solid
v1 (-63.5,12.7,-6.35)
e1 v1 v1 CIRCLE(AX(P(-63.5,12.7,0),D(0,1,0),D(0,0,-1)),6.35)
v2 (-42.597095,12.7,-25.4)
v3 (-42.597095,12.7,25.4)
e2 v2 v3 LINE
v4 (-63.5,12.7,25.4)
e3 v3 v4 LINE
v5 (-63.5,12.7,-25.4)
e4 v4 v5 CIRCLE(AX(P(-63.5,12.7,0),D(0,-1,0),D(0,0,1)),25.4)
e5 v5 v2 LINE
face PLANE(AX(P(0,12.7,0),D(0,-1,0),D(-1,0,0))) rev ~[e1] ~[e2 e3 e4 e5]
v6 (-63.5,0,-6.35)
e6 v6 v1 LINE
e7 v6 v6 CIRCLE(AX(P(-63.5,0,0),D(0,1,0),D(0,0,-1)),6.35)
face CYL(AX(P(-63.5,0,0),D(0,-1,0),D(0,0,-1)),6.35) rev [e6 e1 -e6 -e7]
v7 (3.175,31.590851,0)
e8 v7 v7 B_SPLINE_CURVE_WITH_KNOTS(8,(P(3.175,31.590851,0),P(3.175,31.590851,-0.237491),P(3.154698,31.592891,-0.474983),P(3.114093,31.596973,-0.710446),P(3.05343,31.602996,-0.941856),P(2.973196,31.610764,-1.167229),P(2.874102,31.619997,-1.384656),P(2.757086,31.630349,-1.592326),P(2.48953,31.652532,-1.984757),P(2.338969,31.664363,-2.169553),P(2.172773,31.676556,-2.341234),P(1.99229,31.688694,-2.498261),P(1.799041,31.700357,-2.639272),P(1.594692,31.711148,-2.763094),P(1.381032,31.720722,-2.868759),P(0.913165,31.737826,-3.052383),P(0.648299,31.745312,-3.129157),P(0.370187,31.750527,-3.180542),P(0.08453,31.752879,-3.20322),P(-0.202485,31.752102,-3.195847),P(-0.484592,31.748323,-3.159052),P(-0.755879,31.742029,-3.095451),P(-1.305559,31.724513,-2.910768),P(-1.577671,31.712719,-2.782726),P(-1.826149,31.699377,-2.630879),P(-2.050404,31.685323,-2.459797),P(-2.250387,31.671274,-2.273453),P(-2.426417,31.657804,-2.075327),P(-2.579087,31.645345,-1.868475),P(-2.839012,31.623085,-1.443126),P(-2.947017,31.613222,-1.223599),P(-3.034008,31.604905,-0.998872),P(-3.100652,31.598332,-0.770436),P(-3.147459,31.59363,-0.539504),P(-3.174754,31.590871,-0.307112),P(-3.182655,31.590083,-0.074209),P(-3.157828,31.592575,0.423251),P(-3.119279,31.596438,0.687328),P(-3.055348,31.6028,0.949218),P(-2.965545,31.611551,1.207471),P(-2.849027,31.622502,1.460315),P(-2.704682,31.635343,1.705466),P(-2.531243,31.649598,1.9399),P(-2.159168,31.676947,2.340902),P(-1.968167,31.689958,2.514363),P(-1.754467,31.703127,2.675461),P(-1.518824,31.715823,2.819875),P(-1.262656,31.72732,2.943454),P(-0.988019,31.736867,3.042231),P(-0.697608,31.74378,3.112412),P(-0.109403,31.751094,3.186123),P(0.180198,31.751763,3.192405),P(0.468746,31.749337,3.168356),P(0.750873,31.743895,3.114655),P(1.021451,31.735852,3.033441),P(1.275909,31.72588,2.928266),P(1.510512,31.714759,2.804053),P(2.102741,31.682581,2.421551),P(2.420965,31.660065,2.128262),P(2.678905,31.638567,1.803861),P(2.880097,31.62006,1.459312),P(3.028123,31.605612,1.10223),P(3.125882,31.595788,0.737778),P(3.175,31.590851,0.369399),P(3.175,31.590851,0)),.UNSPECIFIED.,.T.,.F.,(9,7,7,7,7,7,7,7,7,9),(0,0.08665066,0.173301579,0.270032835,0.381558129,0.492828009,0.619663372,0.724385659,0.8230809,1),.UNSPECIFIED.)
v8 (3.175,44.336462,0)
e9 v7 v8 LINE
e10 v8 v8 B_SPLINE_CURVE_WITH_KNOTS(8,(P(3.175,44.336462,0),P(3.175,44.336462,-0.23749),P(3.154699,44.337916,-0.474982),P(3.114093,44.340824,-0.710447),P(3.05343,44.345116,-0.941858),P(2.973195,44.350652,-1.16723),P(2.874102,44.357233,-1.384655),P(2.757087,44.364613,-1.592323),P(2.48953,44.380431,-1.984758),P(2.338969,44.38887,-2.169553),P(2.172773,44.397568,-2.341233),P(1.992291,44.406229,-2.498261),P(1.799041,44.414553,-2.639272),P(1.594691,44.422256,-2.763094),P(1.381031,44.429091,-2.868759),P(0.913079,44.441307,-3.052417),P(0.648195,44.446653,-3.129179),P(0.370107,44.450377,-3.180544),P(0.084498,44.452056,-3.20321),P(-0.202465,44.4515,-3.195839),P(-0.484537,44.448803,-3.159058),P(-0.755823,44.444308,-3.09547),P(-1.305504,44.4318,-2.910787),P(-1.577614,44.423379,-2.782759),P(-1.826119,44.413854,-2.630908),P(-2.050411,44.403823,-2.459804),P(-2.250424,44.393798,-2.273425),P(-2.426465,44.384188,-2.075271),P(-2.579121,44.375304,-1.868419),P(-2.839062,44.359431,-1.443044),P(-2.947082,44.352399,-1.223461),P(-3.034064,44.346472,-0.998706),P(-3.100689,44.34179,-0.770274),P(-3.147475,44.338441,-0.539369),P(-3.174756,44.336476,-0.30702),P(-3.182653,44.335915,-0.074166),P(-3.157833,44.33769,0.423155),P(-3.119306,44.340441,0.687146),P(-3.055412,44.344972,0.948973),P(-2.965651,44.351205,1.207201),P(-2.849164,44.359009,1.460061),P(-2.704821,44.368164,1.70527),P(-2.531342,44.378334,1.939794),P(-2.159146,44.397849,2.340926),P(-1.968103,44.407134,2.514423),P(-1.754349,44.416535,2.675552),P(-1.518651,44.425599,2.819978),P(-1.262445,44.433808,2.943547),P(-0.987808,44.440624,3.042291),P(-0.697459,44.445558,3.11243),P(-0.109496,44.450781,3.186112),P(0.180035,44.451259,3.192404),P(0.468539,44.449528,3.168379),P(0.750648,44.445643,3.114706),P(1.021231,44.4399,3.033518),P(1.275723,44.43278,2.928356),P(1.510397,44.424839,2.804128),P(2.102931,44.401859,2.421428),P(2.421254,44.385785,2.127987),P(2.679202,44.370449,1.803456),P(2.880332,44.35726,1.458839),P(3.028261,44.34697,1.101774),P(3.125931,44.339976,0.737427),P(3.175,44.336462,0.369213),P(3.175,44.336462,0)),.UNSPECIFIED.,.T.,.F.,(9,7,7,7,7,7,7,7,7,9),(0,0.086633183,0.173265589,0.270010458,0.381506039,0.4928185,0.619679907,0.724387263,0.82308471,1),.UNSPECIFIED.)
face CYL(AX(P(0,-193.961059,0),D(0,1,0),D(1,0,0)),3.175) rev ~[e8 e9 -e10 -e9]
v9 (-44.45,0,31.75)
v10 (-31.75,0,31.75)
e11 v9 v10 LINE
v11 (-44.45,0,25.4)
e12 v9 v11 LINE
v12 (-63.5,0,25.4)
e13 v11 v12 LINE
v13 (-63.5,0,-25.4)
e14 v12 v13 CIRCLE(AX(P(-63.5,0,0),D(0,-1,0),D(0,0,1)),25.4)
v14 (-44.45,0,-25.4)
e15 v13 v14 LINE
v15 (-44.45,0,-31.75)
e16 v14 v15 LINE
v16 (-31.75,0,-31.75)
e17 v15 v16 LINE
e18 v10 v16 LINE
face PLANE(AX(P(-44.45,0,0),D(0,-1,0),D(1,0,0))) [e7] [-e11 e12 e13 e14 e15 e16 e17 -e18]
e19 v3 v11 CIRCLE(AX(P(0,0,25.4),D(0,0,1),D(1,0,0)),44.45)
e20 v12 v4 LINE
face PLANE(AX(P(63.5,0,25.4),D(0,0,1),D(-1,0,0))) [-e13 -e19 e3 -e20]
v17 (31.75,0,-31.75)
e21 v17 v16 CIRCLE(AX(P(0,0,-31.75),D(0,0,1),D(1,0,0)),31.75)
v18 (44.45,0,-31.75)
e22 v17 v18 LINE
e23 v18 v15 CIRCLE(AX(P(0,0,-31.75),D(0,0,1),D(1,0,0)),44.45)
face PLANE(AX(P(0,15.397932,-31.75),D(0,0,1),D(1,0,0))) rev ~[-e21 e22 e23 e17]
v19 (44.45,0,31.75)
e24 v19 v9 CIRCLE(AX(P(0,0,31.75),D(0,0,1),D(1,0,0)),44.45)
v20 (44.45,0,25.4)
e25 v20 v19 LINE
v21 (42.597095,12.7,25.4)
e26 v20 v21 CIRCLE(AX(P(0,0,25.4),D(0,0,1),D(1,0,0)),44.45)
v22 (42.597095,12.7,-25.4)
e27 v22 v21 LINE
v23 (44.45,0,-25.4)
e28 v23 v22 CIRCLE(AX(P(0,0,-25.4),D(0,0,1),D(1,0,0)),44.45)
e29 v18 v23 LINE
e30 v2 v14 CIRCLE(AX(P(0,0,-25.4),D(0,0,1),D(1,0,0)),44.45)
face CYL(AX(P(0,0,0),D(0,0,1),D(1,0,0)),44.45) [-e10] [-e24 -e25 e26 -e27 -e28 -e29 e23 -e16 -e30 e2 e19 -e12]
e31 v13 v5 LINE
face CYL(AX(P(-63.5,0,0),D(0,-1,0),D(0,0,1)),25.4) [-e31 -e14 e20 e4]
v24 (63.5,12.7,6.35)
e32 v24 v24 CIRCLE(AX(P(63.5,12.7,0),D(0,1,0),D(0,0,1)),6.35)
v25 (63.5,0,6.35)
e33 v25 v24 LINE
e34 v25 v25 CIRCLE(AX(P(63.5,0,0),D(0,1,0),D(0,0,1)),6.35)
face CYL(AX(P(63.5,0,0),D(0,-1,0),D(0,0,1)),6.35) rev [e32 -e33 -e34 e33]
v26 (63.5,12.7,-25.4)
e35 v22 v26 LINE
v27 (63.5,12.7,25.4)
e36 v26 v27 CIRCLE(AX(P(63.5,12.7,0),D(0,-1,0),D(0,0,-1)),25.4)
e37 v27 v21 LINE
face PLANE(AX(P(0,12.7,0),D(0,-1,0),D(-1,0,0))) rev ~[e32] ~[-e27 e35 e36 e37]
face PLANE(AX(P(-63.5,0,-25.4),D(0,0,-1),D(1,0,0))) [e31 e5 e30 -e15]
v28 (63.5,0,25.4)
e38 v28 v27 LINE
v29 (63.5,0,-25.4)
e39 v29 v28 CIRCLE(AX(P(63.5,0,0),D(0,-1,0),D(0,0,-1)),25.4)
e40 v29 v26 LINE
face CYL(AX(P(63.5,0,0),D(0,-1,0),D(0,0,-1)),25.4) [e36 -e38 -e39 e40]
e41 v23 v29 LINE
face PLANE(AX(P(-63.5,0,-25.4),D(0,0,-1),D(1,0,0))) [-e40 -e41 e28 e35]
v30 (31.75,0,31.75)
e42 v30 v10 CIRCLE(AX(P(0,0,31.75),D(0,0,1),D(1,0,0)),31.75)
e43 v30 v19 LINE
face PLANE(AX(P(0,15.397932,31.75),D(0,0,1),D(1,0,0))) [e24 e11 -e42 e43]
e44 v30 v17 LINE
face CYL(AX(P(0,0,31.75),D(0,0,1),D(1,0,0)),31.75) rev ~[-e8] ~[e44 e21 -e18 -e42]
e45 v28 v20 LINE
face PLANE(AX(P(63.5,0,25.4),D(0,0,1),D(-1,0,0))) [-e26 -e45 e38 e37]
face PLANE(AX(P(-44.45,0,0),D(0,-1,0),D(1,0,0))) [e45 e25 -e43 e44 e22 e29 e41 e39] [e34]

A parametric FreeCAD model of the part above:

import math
import FreeCAD as App
import Part
import Sketcher
from FreeCAD import Vector
Q = App.Units.Quantity

doc = App.newDocument("Part")
body = doc.addObject("PartDesign::Body", "Body")

sketch1 = doc.addObject("Sketcher::SketchObject", "Sketch")
body.addObject(sketch1)
sketch1.AttachmentSupport = (doc.XZ_Plane, [""])
sketch1.MapMode = "FlatFace"
sketch1.addGeometry(Part.LineSegment(Vector(64, -25, 0), Vector(-64, -25, 0)), False)
sketch1.addGeometry(Part.ArcOfCircle(Part.Circle(Vector(-64, 0, 0), Vector(0, 0, 1), 25), math.radians(90), math.radians(270)), False)
sketch1.addGeometry(Part.LineSegment(Vector(-64, 25, 0), Vector(64, 25, 0)), False)
sketch1.addGeometry(Part.ArcOfCircle(Part.Circle(Vector(64, 0, 0), Vector(0, 0, 1), 25), math.radians(-90), math.radians(90)), False)
sketch1.addGeometry(Part.Circle(Vector(64, 0, 0), Vector(0, 0, 1), 6), False)
sketch1.addGeometry(Part.Circle(Vector(-64, 0, 0), Vector(0, 0, 1), 6), False)
sketch1.addConstraint(Sketcher.Constraint("Tangent", 0, 2, 1, 2))
sketch1.addConstraint(Sketcher.Constraint("Tangent", 1, 1, 2, 1))
sketch1.addConstraint(Sketcher.Constraint("Tangent", 2, 2, 3, 2))
sketch1.addConstraint(Sketcher.Constraint("Tangent", 3, 1, 0, 1))
sketch1.addConstraint(Sketcher.Constraint("Horizontal", 0))
sketch1.addConstraint(Sketcher.Constraint("Horizontal", 2))
sketch1.addConstraint(Sketcher.Constraint("Coincident", 4, 3, 3, 3))
sketch1.addConstraint(Sketcher.Constraint("Coincident", 5, 3, 1, 3))
sketch1.addConstraint(Sketcher.Constraint("Equal", 4, 5))
sketch1.addConstraint(Sketcher.Constraint("Symmetric", 1, 3, 3, 3, -1, 1))
sketch1.addConstraint(Sketcher.Constraint("Radius", 1, Q("1 in")))
sketch1.addConstraint(Sketcher.Constraint("Diameter", 4, Q("0.5 in")))
sketch1.addConstraint(Sketcher.Constraint("DistanceX", 0, 2, 0, 1, Q("5 in")))
pad1 = doc.addObject("PartDesign::Pad", "Pad")
body.addObject(pad1)
pad1.Profile = sketch1
pad1.Length = Q("0.5 in")
pad1.Reversed = True

sketch2 = doc.addObject("Sketcher::SketchObject", "Sketch001")
body.addObject(sketch2)
sketch2.AttachmentSupport = (doc.XY_Plane, [""])
sketch2.MapMode = "FlatFace"
sketch2.addGeometry(Part.LineSegment(Vector(-44, 0, 0), Vector(44, 0, 0)), False)
sketch2.addGeometry(Part.ArcOfCircle(Part.Circle(Vector(0, 0, 0), Vector(0, 0, 1), 44), math.radians(0), math.radians(180)), False)
sketch2.addConstraint(Sketcher.Constraint("Coincident", 0, 1, 1, 2))
sketch2.addConstraint(Sketcher.Constraint("Coincident", 1, 1, 0, 2))
sketch2.addConstraint(Sketcher.Constraint("Horizontal", 0))
sketch2.addConstraint(Sketcher.Constraint("Coincident", 1, 3, -1, 1))
sketch2.addConstraint(Sketcher.Constraint("PointOnObject", 0, 1, -1))
sketch2.addConstraint(Sketcher.Constraint("Radius", 1, Q("1.75 in")))
pad2 = doc.addObject("PartDesign::Pad", "Pad001")
body.addObject(pad2)
pad2.Profile = sketch2
pad2.Length = Q("2.5 in")
pad2.Midplane = True

sketch3 = doc.addObject("Sketcher::SketchObject", "Sketch002")
body.addObject(sketch3)
sketch3.AttachmentSupport = (doc.XZ_Plane, [""])
sketch3.MapMode = "FlatFace"
sketch3.addGeometry(Part.Circle(Vector(0, 0, 0), Vector(0, 0, 1), 3.2), False)
sketch3.addConstraint(Sketcher.Constraint("Coincident", 0, 3, -1, 1))
sketch3.addConstraint(Sketcher.Constraint("Diameter", 0, Q("0.25 in")))
doc.recompute()
hole = doc.addObject("PartDesign::Hole", "Hole")
body.addObject(hole)
hole.Profile = sketch3
hole.ThreadType = "None"
hole.Diameter = Q("0.25 in")
hole.DepthType = "ThroughAll"

sketch4 = doc.addObject("Sketcher::SketchObject", "Sketch003")
body.addObject(sketch4)
sketch4.AttachmentSupport = (doc.XY_Plane, [""])
sketch4.MapMode = "FlatFace"
sketch4.AttachmentOffset = App.Placement(Vector(0, 0, 1.25 * 25.4), App.Rotation())
sketch4.addGeometry(Part.LineSegment(Vector(-32, 0, 0), Vector(32, 0, 0)), False)
sketch4.addGeometry(Part.ArcOfCircle(Part.Circle(Vector(0, 0, 0), Vector(0, 0, 1), 32), math.radians(0), math.radians(180)), False)
sketch4.addConstraint(Sketcher.Constraint("Coincident", 0, 1, 1, 2))
sketch4.addConstraint(Sketcher.Constraint("Coincident", 1, 1, 0, 2))
sketch4.addConstraint(Sketcher.Constraint("Horizontal", 0))
sketch4.addConstraint(Sketcher.Constraint("Coincident", 1, 3, -1, 1))
sketch4.addConstraint(Sketcher.Constraint("PointOnObject", 0, 1, -1))
sketch4.addConstraint(Sketcher.Constraint("Radius", 1, Q("1.25 in")))
pocket1 = doc.addObject("PartDesign::Pocket", "Pocket")
body.addObject(pocket1)
pocket1.Profile = sketch4
pocket1.Type = "ThroughAll"

doc.recompute()
